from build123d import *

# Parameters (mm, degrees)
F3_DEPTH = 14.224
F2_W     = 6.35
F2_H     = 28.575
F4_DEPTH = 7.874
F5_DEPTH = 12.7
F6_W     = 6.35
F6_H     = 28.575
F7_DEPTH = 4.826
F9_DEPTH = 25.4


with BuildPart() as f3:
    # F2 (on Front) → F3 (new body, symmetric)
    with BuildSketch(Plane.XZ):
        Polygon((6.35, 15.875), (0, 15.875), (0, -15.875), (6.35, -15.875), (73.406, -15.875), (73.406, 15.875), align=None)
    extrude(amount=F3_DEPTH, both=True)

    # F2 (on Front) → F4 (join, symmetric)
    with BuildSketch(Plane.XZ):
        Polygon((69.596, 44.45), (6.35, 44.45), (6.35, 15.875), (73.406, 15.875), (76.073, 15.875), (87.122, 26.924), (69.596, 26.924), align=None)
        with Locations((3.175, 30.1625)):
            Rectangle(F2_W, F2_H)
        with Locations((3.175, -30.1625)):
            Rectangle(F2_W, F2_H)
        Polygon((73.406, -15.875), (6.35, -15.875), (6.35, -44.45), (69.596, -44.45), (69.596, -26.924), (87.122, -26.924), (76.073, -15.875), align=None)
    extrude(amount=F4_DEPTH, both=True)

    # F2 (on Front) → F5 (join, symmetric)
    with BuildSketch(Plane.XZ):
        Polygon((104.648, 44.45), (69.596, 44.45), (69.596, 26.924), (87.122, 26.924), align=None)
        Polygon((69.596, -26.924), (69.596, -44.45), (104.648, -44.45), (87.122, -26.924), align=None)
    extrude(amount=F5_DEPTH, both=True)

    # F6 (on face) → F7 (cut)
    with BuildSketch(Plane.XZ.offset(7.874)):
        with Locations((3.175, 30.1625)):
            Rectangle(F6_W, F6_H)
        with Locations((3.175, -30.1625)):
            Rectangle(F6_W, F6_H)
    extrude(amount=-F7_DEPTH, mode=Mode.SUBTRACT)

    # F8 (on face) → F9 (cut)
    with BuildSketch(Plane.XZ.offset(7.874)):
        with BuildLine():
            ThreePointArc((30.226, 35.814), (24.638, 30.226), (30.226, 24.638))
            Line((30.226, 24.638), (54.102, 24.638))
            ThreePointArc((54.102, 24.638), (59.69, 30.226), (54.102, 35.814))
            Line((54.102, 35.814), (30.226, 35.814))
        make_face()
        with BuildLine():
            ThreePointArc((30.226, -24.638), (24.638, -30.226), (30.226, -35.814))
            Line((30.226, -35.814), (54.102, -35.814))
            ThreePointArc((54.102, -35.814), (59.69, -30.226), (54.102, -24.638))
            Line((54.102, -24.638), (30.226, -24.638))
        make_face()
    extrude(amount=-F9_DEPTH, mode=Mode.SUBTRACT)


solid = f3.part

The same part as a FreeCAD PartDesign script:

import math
import FreeCAD as App
import Part
import Sketcher
from FreeCAD import Vector
Q = App.Units.Quantity


def add_polygon(sketch, points):
    """Adds a closed chain of lines whose ends are joined by coincident constraints."""
    first, n = sketch.GeometryCount, len(points)
    for a, b in zip(points, points[1:] + points[:1]):
        sketch.addGeometry(Part.LineSegment(App.Vector(*a, 0), App.Vector(*b, 0)), False)
    for i in range(n):
        sketch.addConstraint(Sketcher.Constraint("Coincident", first + i, 2, first + (i + 1) % n, 1))

doc = App.newDocument("Part")
params = doc.addObject("Spreadsheet::Sheet", "Params")
for row, (alias, value) in enumerate([
    ("sketch1_width", "2.89 in"),
    ("sketch1_height", "1.25 in"),
    ("pad1_length", "1.12 in"),
    ("sketch2_width", "2.74 in"),
    ("sketch2_width2", "0.69 in"),
    ("sketch2_width3", "2.995 in"),
    ("pad2_length", "0.62 in"),
    ("sketch3_width", "1.38 in"),
    ("pad3_length", "1 in"),
    ("sketch4_width", "0.25 in"),
    ("sketch4_height", "1.125 in"),
    ("pocket1_length", "0.19 in"),
    ("sketch5_radius", "0.22 in"),
    ("sketch5_width", "0.94 in"),
    ("pocket2_length", "1 in"),
], start=1):
    params.set(f"A{row}", alias)
    params.set(f"B{row}", "=" + value)
    params.setAlias(f"B{row}", alias)

body = doc.addObject("PartDesign::Body", "Body")

# Sketch on XZ plane
sketch1 = body.newObject("Sketcher::SketchObject", "Sketch")
sketch1.AttachmentSupport = (doc.getObject("XZ_Plane"), [""])
sketch1.MapMode = "FlatFace"
add_polygon(sketch1, [(0, 15.875), (0, -15.875), (73.406, -15.875), (73.406, 15.875)])  # lines 0-3
sketch1.addConstraint([
    Sketcher.Constraint("Vertical", 0),
    Sketcher.Constraint("Horizontal", 1),
    Sketcher.Constraint("Vertical", 2),
    Sketcher.Constraint("Horizontal", 3),
    Sketcher.Constraint("Symmetric", 0, 2, 3, 2, -1, 1),
    Sketcher.Constraint("DistanceX", 1, 1, 1, 2, Q("2.89 in")),
    Sketcher.Constraint("DistanceY", 0, 2, 0, 1, Q("1.25 in")),
])
sketch1.setExpression("Constraints[9]", "Params.sketch1_width")
sketch1.setExpression("Constraints[10]", "Params.sketch1_height")
pad1 = body.newObject("PartDesign::Pad", "Pad")
pad1.Profile = sketch1
pad1.setExpression("Length", "Params.pad1_length")
pad1.Midplane = True

# Sketch on XZ plane
sketch2 = body.newObject("Sketcher::SketchObject", "Sketch001")
sketch2.AttachmentSupport = (doc.getObject("XZ_Plane"), [""])
sketch2.MapMode = "FlatFace"
add_polygon(sketch2, [(69.596, 44.45), (0, 44.45), (0, 15.875), (76.073, 15.875), (87.122, 26.924), (69.596, 26.924)])  # lines 0-5
add_polygon(sketch2, [(0, -15.875), (0, -44.45), (69.596, -44.45), (69.596, -26.924), (87.122, -26.924), (76.073, -15.875)])  # lines 6-11
sketch2.addConstraint([
    Sketcher.Constraint("Horizontal", 0),
    Sketcher.Constraint("Vertical", 1),
    Sketcher.Constraint("Horizontal", 2),
    Sketcher.Constraint("Horizontal", 4),
    Sketcher.Constraint("Vertical", 5),
    Sketcher.Constraint("Vertical", 6),
    Sketcher.Constraint("Horizontal", 7),
    Sketcher.Constraint("Vertical", 8),
    Sketcher.Constraint("Horizontal", 9),
    Sketcher.Constraint("Horizontal", 11),
    Sketcher.Constraint("Symmetric", 0, 2, 6, 2, -1, 1),
    Sketcher.Constraint("Symmetric", 4, 2, 8, 2, -1),
    Sketcher.Constraint("Symmetric", 2, 2, 10, 2, -1),
    Sketcher.Constraint("PointOnObject", 0, 2, -2),
    Sketcher.Constraint("Perpendicular", 3, 10),
    Sketcher.Constraint("Vertical", 3, 2, 9, 2),
    Sketcher.Constraint("Equal", 9, 5),
    Sketcher.Constraint("DistanceX", 0, 2, 0, 1, Q("2.74 in")),
    Sketcher.Constraint("DistanceX", 4, 2, 4, 1, Q("0.69 in")),
    Sketcher.Constraint("DistanceY", 6, 2, 0, 2, Q("3.5 in")),
    Sketcher.Constraint("DistanceX", 2, 1, 2, 2, Q("2.995 in")),
])
sketch2.setExpression("Constraints[29]", "Params.sketch2_width")
sketch2.setExpression("Constraints[30]", "Params.sketch2_width2")
sketch2.setExpression("Constraints[32]", "Params.sketch2_width3")
pad2 = body.newObject("PartDesign::Pad", "Pad001")
pad2.Profile = sketch2
pad2.setExpression("Length", "Params.pad2_length")
pad2.Midplane = True

# Sketch on XZ plane
sketch3 = body.newObject("Sketcher::SketchObject", "Sketch002")
sketch3.AttachmentSupport = (doc.getObject("XZ_Plane"), [""])
sketch3.MapMode = "FlatFace"
add_polygon(sketch3, [(104.648, 44.45), (69.596, 44.45), (69.596, 26.924), (87.122, 26.924)])  # lines 0-3
add_polygon(sketch3, [(69.596, -26.924), (69.596, -44.45), (104.648, -44.45), (87.122, -26.924)])  # lines 4-7
sketch3.addConstraint([
    Sketcher.Constraint("Horizontal", 0),
    Sketcher.Constraint("Vertical", 1),
    Sketcher.Constraint("Horizontal", 2),
    Sketcher.Constraint("Vertical", 4),
    Sketcher.Constraint("Horizontal", 5),
    Sketcher.Constraint("Horizontal", 7),
    Sketcher.Constraint("Symmetric", 0, 2, 4, 2, -1),
    Sketcher.Constraint("Symmetric", 2, 2, 6, 2, -1),
    Sketcher.Constraint("Perpendicular", 3, 6),
    Sketcher.Constraint("Vertical", 3, 2, 5, 2),
    Sketcher.Constraint("Equal", 7, 1),
    Sketcher.Constraint("DistanceX", 0, 2, 0, 1, Q("1.38 in")),
    Sketcher.Constraint("DistanceY", 4, 2, 0, 2, Q("3.5 in")),
    Sketcher.Constraint("DistanceX", -1, 1, 0, 2, Q("2.74 in")),
])
sketch3.setExpression("Constraints[19]", "Params.sketch3_width")
pad3 = body.newObject("PartDesign::Pad", "Pad002")
pad3.Profile = sketch3
pad3.setExpression("Length", "Params.pad3_length")
pad3.Midplane = True

# Sketch on XZ plane
sketch4 = body.newObject("Sketcher::SketchObject", "Sketch003")
sketch4.AttachmentSupport = (doc.getObject("XZ_Plane"), [""])
sketch4.MapMode = "FlatFace"
sketch4.AttachmentOffset = App.Placement(Vector(0, 0, 0.31 * 25.4), App.Rotation())
add_polygon(sketch4, [(0, 44.45), (0, 15.875), (6.35, 15.875), (6.35, 44.45)])  # lines 0-3
add_polygon(sketch4, [(0, -15.875), (0, -44.45), (6.35, -44.45), (6.35, -15.875)])  # lines 4-7
sketch4.addConstraint([
    Sketcher.Constraint("Vertical", 0),
    Sketcher.Constraint("Horizontal", 1),
    Sketcher.Constraint("Vertical", 2),
    Sketcher.Constraint("Horizontal", 3),
    Sketcher.Constraint("Vertical", 4),
    Sketcher.Constraint("Horizontal", 5),
    Sketcher.Constraint("Vertical", 6),
    Sketcher.Constraint("Horizontal", 7),
    Sketcher.Constraint("Symmetric", 3, 2, 4, 2, -1, 1),
    Sketcher.Constraint("Symmetric", 1, 2, 6, 2, -1),
    Sketcher.Constraint("PointOnObject", 0, 2, -2),
    Sketcher.Constraint("DistanceX", 1, 1, 1, 2, Q("0.25 in")),
    Sketcher.Constraint("DistanceY", 4, 2, 3, 2, Q("3.5 in")),
    Sketcher.Constraint("DistanceY", 0, 2, 0, 1, Q("1.125 in")),
])
sketch4.setExpression("Constraints[19]", "Params.sketch4_width")
sketch4.setExpression("Constraints[21]", "Params.sketch4_height")
pocket1 = body.newObject("PartDesign::Pocket", "Pocket")
pocket1.Profile = sketch4
pocket1.setExpression("Length", "Params.pocket1_length")

# Sketch on XZ plane
sketch5 = body.newObject("Sketcher::SketchObject", "Sketch004")
sketch5.AttachmentSupport = (doc.getObject("XZ_Plane"), [""])
sketch5.MapMode = "FlatFace"
sketch5.AttachmentOffset = App.Placement(Vector(0, 0, 0.31 * 25.4), App.Rotation())
sketch5.addGeometry([
    Part.ArcOfCircle(Part.Circle(Vector(30.226, 30.226, 0), Vector(0, 0, 1), 5.588), math.radians(90), math.radians(270)),  # 0
    Part.LineSegment(Vector(30.226, 24.638, 0), Vector(54.102, 24.638, 0)),  # 1
    Part.ArcOfCircle(Part.Circle(Vector(54.102, 30.226, 0), Vector(0, 0, 1), 5.588), math.radians(-90), math.radians(90)),  # 2
    Part.LineSegment(Vector(54.102, 35.814, 0), Vector(30.226, 35.814, 0)),  # 3
    Part.ArcOfCircle(Part.Circle(Vector(30.226, -30.226, 0), Vector(0, 0, 1), 5.588), math.radians(90), math.radians(270)),  # 4
    Part.LineSegment(Vector(30.226, -35.814, 0), Vector(54.102, -35.814, 0)),  # 5
    Part.ArcOfCircle(Part.Circle(Vector(54.102, -30.226, 0), Vector(0, 0, 1), 5.588), math.radians(-90), math.radians(90)),  # 6
    Part.LineSegment(Vector(54.102, -24.638, 0), Vector(30.226, -24.638, 0)),  # 7
], False)
sketch5.addConstraint([
    Sketcher.Constraint("Tangent", 0, 2, 1, 1),
    Sketcher.Constraint("Tangent", 1, 2, 2, 1),
    Sketcher.Constraint("Tangent", 2, 2, 3, 1),
    Sketcher.Constraint("Tangent", 3, 2, 0, 1),
    Sketcher.Constraint("Tangent", 4, 2, 5, 1),
    Sketcher.Constraint("Tangent", 5, 2, 6, 1),
    Sketcher.Constraint("Tangent", 6, 2, 7, 1),
    Sketcher.Constraint("Tangent", 7, 2, 4, 1),
    Sketcher.Constraint("Horizontal", 1),
    Sketcher.Constraint("Horizontal", 3),
    Sketcher.Constraint("Horizontal", 5),
    Sketcher.Constraint("Horizontal", 7),
    Sketcher.Constraint("Equal", 2, 4),
    Sketcher.Constraint("Symmetric", 0, 3, 4, 3, -1),
    Sketcher.Constraint("Vertical", 2, 3, 6, 3),
    Sketcher.Constraint("Radius", 0, Q("0.22 in")),
    Sketcher.Constraint("DistanceX", 1, 1, 1, 2, Q("0.94 in")),
    Sketcher.Constraint("DistanceY", 6, 3, 2, 2, Q("2.6 in")),
    Sketcher.Constraint("DistanceX", -1, 1, 0, 3, Q("1.19 in")),
])
sketch5.setExpression("Constraints[15]", "Params.sketch5_radius")
sketch5.setExpression("Constraints[16]", "Params.sketch5_width")
pocket2 = body.newObject("PartDesign::Pocket", "Pocket001")
pocket2.Profile = sketch5
pocket2.setExpression("Length", "Params.pocket2_length")

doc.recompute()
